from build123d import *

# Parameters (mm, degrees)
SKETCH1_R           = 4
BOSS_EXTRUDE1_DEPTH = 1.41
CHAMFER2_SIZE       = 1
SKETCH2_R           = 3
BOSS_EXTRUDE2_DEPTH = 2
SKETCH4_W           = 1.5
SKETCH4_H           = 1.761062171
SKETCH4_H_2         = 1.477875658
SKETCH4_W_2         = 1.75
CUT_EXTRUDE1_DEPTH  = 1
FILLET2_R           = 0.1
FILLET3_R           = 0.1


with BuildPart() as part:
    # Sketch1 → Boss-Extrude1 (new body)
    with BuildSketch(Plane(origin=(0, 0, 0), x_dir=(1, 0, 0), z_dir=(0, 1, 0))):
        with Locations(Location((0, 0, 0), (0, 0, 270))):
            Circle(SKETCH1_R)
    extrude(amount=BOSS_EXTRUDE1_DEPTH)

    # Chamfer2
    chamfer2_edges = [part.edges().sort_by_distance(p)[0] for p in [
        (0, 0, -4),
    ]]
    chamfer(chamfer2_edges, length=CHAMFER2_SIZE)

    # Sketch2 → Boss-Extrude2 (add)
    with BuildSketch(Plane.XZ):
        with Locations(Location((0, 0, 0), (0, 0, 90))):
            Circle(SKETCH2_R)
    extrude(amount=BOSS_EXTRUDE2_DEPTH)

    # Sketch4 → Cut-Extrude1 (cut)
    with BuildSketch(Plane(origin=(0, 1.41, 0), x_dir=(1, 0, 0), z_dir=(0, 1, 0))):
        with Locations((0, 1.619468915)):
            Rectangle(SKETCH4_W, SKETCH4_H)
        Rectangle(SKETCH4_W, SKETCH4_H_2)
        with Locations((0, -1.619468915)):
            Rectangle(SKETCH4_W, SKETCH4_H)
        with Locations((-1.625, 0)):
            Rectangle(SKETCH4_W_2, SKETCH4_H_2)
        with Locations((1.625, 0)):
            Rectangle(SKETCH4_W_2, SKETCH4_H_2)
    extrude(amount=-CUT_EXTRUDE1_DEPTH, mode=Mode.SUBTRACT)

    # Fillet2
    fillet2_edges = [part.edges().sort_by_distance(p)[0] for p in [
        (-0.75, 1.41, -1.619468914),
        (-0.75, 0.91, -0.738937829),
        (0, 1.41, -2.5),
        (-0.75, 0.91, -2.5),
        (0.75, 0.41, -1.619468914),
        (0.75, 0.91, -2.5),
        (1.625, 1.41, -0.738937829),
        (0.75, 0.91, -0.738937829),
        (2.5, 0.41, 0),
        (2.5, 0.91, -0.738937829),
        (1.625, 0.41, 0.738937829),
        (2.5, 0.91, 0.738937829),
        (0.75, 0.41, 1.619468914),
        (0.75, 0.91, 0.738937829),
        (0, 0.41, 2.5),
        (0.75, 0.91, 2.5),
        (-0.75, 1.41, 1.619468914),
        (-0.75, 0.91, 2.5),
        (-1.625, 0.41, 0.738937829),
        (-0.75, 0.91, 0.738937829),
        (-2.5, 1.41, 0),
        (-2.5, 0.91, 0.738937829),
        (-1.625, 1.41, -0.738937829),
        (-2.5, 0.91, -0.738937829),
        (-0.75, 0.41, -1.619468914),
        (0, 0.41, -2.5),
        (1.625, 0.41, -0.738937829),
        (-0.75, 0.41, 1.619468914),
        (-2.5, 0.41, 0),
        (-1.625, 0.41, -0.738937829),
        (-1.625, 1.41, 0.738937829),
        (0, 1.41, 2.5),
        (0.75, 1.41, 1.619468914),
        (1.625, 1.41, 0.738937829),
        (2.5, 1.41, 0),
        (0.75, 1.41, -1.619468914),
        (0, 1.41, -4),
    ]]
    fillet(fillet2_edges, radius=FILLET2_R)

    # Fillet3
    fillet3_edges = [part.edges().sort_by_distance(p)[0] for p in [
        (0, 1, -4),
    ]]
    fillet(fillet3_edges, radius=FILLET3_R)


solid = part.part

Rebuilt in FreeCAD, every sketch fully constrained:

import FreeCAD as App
import Part
import Sketcher

V = App.Vector


def edges_at(feature, points):
    """Names of the edges that pass closest to the given points."""
    edges = feature.Shape.Edges
    near = lambda p: min(range(len(edges)), key=lambda i: edges[i].distToShape(Part.Vertex(*p))[0])
    return sorted({f"Edge{near(p) + 1}" for p in points})


def add_polygon(sketch, points):
    """Adds a closed chain of lines whose ends are joined by coincident constraints."""
    first, n = sketch.GeometryCount, len(points)
    for a, b in zip(points, points[1:] + points[:1]):
        sketch.addGeometry(Part.LineSegment(App.Vector(*a, 0), App.Vector(*b, 0)), False)
    for i in range(n):
        sketch.addConstraint(Sketcher.Constraint("Coincident", first + i, 2, first + (i + 1) % n, 1))

doc = App.newDocument("Part")
body = doc.addObject("PartDesign::Body", "Body")

# Sketch on XZ plane
sketch1 = body.newObject("Sketcher::SketchObject", "Sketch")
sketch1.AttachmentSupport = (doc.getObject("XZ_Plane"), [""])
sketch1.MapMode = "FlatFace"
sketch1.addGeometry(Part.Circle(V(0, 0, 0), V(0, 0, 1), 4), False)
sketch1.addConstraint(Sketcher.Constraint("Coincident", 0, 3, -1, 1))
sketch1.addConstraint(Sketcher.Constraint("Diameter", 0, 8.0))
pad1 = body.newObject("PartDesign::Pad", "Pad")
pad1.Profile = sketch1
pad1.Length = 1.41
pad1.Reversed = True
doc.recompute()

chamfer = body.newObject("PartDesign::Chamfer", "Chamfer")
chamfer.Base = (pad1, edges_at(pad1, [(0, 0, -4)]))
chamfer.Size = 1

# Sketch on XZ plane
sketch2 = body.newObject("Sketcher::SketchObject", "Sketch001")
sketch2.AttachmentSupport = (doc.getObject("XZ_Plane"), [""])
sketch2.MapMode = "FlatFace"
sketch2.addGeometry(Part.Circle(V(0, 0, 0), V(0, 0, 1), 3), False)
sketch2.addConstraint(Sketcher.Constraint("Coincident", 0, 3, -1, 1))
sketch2.addConstraint(Sketcher.Constraint("Diameter", 0, 6.0))
pad2 = body.newObject("PartDesign::Pad", "Pad001")
pad2.Profile = sketch2
pad2.Length = 2

# Sketch on XZ plane
sketch3 = body.newObject("Sketcher::SketchObject", "Sketch002")
sketch3.AttachmentSupport = (doc.getObject("XZ_Plane"), [""])
sketch3.MapMode = "FlatFace"
sketch3.AttachmentOffset = App.Placement(V(0, 0, -1.41), App.Rotation())
add_polygon(sketch3, [(-0.8, -2.5), (-0.8, -0.7), (-2.5, -0.7), (-2.5, 0.7), (-0.8, 0.7), (-0.8, 2.5), (0.8, 2.5), (0.8, 0.7), (2.5, 0.7), (2.5, -0.7), (0.8, -0.7), (0.8, -2.5)])  # lines 0-11
sketch3.addConstraint(Sketcher.Constraint("Vertical", 0))
sketch3.addConstraint(Sketcher.Constraint("Horizontal", 1))
sketch3.addConstraint(Sketcher.Constraint("Vertical", 2))
sketch3.addConstraint(Sketcher.Constraint("Horizontal", 3))
sketch3.addConstraint(Sketcher.Constraint("Vertical", 4))
sketch3.addConstraint(Sketcher.Constraint("Horizontal", 5))
sketch3.addConstraint(Sketcher.Constraint("Vertical", 6))
sketch3.addConstraint(Sketcher.Constraint("Horizontal", 7))
sketch3.addConstraint(Sketcher.Constraint("Vertical", 8))
sketch3.addConstraint(Sketcher.Constraint("Horizontal", 9))
sketch3.addConstraint(Sketcher.Constraint("Vertical", 10))
sketch3.addConstraint(Sketcher.Constraint("Horizontal", 11))
sketch3.addConstraint(Sketcher.Constraint("Symmetric", 0, 2, 6, 2, -1, 1))
sketch3.addConstraint(Sketcher.Constraint("Symmetric", 2, 2, 8, 2, -1, 1))
sketch3.addConstraint(Sketcher.Constraint("Symmetric", 4, 2, 10, 2, -1, 1))
sketch3.addConstraint(Sketcher.Constraint("Symmetric", 3, 2, 6, 2, -2))
sketch3.addConstraint(Sketcher.Constraint("DistanceX", 5, 1, 5, 2, 1.5))
sketch3.addConstraint(Sketcher.Constraint("DistanceX", 1, 2, 1, 1, 1.75))
sketch3.addConstraint(Sketcher.Constraint("DistanceY", -1, 1, 4, 2, 2.5))
sketch3.addConstraint(Sketcher.Constraint("DistanceY", 0, 1, 0, 2, 1.761062))
pocket1 = body.newObject("PartDesign::Pocket", "Pocket")
pocket1.Profile = sketch3
pocket1.Length = 1
pocket1.Reversed = True
doc.recompute()

fillet = body.newObject("PartDesign::Fillet", "Fillet")
fillet.Base = (pocket1, edges_at(pocket1, [
    (-0.75, 1.41, -1.619),
    (-0.75, 0.91, -0.739),
    (0, 1.41, -2.5),
    (-0.75, 0.91, -2.5),
    (0.75, 0.41, -1.619),
    (0.75, 0.91, -2.5),
    (1.625, 1.41, -0.739),
    (0.75, 0.91, -0.739),
    (2.5, 0.41, 0),
    (2.5, 0.91, -0.739),
    (1.625, 0.41, 0.739),
    (2.5, 0.91, 0.739),
    (0.75, 0.41, 1.619),
    (0.75, 0.91, 0.739),
    (0, 0.41, 2.5),
    (0.75, 0.91, 2.5),
    (-0.75, 1.41, 1.619),
    (-0.75, 0.91, 2.5),
    (-1.625, 0.41, 0.739),
    (-0.75, 0.91, 0.739),
    (-2.5, 1.41, 0),
    (-2.5, 0.91, 0.739),
    (-1.625, 1.41, -0.739),
    (-2.5, 0.91, -0.739),
    (-0.75, 0.41, -1.619),
    (0, 0.41, -2.5),
    (1.625, 0.41, -0.739),
    (-0.75, 0.41, 1.619),
    (-2.5, 0.41, 0),
    (-1.625, 0.41, -0.739),
    (-1.625, 1.41, 0.739),
    (0, 1.41, 2.5),
    (0.75, 1.41, 1.619),
    (1.625, 1.41, 0.739),
    (2.5, 1.41, 0),
    (0.75, 1.41, -1.619),
    (0, 1.41, -4),
]))
fillet.Radius = 0.1
doc.recompute()

fillet2 = body.newObject("PartDesign::Fillet", "Fillet001")
fillet2.Base = (fillet, edges_at(fillet, [(0, 1, -4)]))
fillet2.Radius = 0.1

doc.recompute()
